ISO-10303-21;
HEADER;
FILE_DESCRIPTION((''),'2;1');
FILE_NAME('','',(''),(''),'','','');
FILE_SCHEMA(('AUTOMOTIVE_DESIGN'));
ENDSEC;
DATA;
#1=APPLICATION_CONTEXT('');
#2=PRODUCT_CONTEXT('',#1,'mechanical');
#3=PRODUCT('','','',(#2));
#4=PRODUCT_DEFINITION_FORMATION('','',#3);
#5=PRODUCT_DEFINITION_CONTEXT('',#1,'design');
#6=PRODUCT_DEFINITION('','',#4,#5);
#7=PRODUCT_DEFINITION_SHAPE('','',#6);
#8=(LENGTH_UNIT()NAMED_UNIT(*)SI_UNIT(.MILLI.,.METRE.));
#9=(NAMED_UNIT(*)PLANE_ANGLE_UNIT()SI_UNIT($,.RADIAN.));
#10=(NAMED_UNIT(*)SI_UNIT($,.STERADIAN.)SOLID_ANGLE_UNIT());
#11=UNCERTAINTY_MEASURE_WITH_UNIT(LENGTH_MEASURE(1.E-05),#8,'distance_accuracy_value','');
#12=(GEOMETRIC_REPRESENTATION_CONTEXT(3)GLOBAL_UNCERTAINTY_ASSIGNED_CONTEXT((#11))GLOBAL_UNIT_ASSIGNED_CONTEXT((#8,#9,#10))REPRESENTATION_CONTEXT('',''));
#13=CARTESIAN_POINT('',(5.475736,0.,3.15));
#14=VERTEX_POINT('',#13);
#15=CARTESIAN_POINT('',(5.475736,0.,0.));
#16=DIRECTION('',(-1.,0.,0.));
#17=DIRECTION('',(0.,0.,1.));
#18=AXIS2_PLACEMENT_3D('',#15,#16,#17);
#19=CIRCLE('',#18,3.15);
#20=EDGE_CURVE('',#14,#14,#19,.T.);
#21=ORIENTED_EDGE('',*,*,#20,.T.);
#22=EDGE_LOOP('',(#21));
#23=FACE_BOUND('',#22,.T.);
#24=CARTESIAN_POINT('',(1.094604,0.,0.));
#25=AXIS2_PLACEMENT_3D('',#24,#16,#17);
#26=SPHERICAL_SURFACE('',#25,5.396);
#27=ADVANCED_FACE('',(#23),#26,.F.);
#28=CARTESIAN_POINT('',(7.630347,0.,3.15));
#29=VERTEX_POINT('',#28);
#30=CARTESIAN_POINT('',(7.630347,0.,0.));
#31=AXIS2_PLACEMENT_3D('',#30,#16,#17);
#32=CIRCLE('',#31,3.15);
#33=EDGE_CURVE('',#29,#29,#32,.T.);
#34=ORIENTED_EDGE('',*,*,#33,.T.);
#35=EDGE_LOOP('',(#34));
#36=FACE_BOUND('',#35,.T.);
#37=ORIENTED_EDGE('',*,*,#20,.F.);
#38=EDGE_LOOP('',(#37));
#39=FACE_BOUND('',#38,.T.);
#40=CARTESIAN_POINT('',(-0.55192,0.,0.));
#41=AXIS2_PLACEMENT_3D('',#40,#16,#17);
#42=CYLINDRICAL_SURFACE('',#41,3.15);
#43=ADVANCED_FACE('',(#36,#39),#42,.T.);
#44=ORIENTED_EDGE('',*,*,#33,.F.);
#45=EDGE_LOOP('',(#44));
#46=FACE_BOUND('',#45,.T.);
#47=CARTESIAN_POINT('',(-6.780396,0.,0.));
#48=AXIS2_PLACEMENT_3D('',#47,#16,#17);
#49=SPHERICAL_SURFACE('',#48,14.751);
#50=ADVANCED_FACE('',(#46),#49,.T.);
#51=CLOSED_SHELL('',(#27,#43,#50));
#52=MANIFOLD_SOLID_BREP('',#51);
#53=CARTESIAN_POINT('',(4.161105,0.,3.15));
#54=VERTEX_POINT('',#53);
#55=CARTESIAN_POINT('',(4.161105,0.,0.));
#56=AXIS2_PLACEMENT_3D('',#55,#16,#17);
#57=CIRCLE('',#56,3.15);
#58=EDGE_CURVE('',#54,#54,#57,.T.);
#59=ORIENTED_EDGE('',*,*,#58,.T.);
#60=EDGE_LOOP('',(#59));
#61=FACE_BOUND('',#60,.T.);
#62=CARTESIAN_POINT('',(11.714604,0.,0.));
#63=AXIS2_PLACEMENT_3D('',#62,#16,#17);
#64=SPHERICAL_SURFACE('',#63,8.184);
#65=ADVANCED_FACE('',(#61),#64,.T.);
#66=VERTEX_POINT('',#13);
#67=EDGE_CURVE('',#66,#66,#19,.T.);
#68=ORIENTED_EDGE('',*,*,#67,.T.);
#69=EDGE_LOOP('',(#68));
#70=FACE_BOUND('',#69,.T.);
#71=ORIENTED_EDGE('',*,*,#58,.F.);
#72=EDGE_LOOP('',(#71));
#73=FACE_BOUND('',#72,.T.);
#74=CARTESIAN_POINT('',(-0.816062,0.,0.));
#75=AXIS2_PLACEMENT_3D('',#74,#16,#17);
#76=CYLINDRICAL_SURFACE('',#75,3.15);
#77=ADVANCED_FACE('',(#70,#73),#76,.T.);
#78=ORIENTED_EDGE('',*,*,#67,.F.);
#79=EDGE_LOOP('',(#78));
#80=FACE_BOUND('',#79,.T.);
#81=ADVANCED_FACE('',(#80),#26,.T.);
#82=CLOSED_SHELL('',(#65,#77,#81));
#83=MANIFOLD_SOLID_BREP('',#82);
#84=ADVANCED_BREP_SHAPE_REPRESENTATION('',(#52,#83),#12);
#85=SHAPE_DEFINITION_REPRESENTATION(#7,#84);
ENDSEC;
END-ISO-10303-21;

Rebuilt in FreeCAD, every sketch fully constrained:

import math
import FreeCAD as App
import Part
import Sketcher

V = App.Vector

doc = App.newDocument("Part")
body = doc.addObject("PartDesign::Body", "Body")

# Sketch on XZ plane
sketch1 = body.newObject("Sketcher::SketchObject", "Sketch")
sketch1.AttachmentSupport = (doc.getObject("XZ_Plane"), [""])
sketch1.MapMode = "FlatFace"
sketch1.addGeometry(Part.ArcOfCircle(Part.Circle(V(11.7, 0, 0), V(0, 0, 1), 8.2), math.radians(180), math.radians(203)), False)
sketch1.addGeometry(Part.LineSegment(V(3.5, 0, 0), V(6.5, 0, 0)), False)
sketch1.addGeometry(Part.ArcOfCircle(Part.Circle(V(1.1, 0, 0), V(0, 0, 1), 5.4), math.radians(-36), math.radians(0)), False)
sketch1.addGeometry(Part.LineSegment(V(5.5, -3.1, 0), V(4.2, -3.1, 0)), False)
sketch1.addConstraint(Sketcher.Constraint("Coincident", 0, 1, 1, 1))
sketch1.addConstraint(Sketcher.Constraint("Coincident", 1, 2, 2, 2))
sketch1.addConstraint(Sketcher.Constraint("Coincident", 2, 1, 3, 1))
sketch1.addConstraint(Sketcher.Constraint("Coincident", 3, 2, 0, 2))
sketch1.addConstraint(Sketcher.Constraint("Horizontal", 1))
sketch1.addConstraint(Sketcher.Constraint("Horizontal", 3))
sketch1.addConstraint(Sketcher.Constraint("PointOnObject", 0, 3, -1))
sketch1.addConstraint(Sketcher.Constraint("PointOnObject", 2, 3, -1))
sketch1.addConstraint(Sketcher.Constraint("PointOnObject", 0, 1, -1))
sketch1.addConstraint(Sketcher.Constraint("Radius", 0, 8.184))
sketch1.addConstraint(Sketcher.Constraint("Radius", 2, 5.396))
sketch1.addConstraint(Sketcher.Constraint("DistanceX", 1, 1, 1, 2, 2.96))
sketch1.addConstraint(Sketcher.Constraint("DistanceY", 2, 1, -1, 1, 3.15))
sketch1.addConstraint(Sketcher.Constraint("DistanceX", -1, 1, 0, 3, 11.714604))
revolution = body.newObject("PartDesign::Revolution", "Revolution")
revolution.Profile = sketch1
revolution.ReferenceAxis = (sketch1, ["H_Axis"])
revolution.Angle = 360
body2 = doc.addObject("PartDesign::Body", "Body001")

# Sketch on XZ plane
sketch2 = body2.newObject("Sketcher::SketchObject", "Sketch001")
sketch2.AttachmentSupport = (doc.getObject("XZ_Plane001"), [""])
sketch2.MapMode = "FlatFace"
sketch2.addGeometry(Part.LineSegment(V(7.6, -3.1, 0), V(5.5, -3.1, 0)), False)
sketch2.addGeometry(Part.ArcOfCircle(Part.Circle(V(1.1, 0, 0), V(0, 0, 1), 5.4), math.radians(-36), math.radians(0)), False)
sketch2.addGeometry(Part.LineSegment(V(6.5, 0, 0), V(8, 0, 0)), False)
sketch2.addGeometry(Part.ArcOfCircle(Part.Circle(V(-6.8, 0, 0), V(0, 0, 1), 14.8), math.radians(-12.33), math.radians(0)), False)
sketch2.addConstraint(Sketcher.Constraint("Coincident", 0, 2, 1, 1))
sketch2.addConstraint(Sketcher.Constraint("Coincident", 1, 2, 2, 1))
sketch2.addConstraint(Sketcher.Constraint("Coincident", 2, 2, 3, 2))
sketch2.addConstraint(Sketcher.Constraint("Coincident", 3, 1, 0, 1))
sketch2.addConstraint(Sketcher.Constraint("Horizontal", 0))
sketch2.addConstraint(Sketcher.Constraint("Horizontal", 2))
sketch2.addConstraint(Sketcher.Constraint("PointOnObject", 1, 3, -1))
sketch2.addConstraint(Sketcher.Constraint("PointOnObject", 3, 3, -1))
sketch2.addConstraint(Sketcher.Constraint("PointOnObject", 1, 2, -1))
sketch2.addConstraint(Sketcher.Constraint("Radius", 1, 5.396))
sketch2.addConstraint(Sketcher.Constraint("Radius", 3, 14.751))
sketch2.addConstraint(Sketcher.Constraint("DistanceX", 2, 1, 2, 2, 1.48))
sketch2.addConstraint(Sketcher.Constraint("DistanceY", 0, 2, -1, 1, 3.15))
sketch2.addConstraint(Sketcher.Constraint("DistanceX", -1, 1, 1, 3, 1.094604))
revolution2 = body2.newObject("PartDesign::Revolution", "Revolution001")
revolution2.Profile = sketch2
revolution2.ReferenceAxis = (sketch2, ["H_Axis"])
revolution2.Angle = 360

doc.recompute()
